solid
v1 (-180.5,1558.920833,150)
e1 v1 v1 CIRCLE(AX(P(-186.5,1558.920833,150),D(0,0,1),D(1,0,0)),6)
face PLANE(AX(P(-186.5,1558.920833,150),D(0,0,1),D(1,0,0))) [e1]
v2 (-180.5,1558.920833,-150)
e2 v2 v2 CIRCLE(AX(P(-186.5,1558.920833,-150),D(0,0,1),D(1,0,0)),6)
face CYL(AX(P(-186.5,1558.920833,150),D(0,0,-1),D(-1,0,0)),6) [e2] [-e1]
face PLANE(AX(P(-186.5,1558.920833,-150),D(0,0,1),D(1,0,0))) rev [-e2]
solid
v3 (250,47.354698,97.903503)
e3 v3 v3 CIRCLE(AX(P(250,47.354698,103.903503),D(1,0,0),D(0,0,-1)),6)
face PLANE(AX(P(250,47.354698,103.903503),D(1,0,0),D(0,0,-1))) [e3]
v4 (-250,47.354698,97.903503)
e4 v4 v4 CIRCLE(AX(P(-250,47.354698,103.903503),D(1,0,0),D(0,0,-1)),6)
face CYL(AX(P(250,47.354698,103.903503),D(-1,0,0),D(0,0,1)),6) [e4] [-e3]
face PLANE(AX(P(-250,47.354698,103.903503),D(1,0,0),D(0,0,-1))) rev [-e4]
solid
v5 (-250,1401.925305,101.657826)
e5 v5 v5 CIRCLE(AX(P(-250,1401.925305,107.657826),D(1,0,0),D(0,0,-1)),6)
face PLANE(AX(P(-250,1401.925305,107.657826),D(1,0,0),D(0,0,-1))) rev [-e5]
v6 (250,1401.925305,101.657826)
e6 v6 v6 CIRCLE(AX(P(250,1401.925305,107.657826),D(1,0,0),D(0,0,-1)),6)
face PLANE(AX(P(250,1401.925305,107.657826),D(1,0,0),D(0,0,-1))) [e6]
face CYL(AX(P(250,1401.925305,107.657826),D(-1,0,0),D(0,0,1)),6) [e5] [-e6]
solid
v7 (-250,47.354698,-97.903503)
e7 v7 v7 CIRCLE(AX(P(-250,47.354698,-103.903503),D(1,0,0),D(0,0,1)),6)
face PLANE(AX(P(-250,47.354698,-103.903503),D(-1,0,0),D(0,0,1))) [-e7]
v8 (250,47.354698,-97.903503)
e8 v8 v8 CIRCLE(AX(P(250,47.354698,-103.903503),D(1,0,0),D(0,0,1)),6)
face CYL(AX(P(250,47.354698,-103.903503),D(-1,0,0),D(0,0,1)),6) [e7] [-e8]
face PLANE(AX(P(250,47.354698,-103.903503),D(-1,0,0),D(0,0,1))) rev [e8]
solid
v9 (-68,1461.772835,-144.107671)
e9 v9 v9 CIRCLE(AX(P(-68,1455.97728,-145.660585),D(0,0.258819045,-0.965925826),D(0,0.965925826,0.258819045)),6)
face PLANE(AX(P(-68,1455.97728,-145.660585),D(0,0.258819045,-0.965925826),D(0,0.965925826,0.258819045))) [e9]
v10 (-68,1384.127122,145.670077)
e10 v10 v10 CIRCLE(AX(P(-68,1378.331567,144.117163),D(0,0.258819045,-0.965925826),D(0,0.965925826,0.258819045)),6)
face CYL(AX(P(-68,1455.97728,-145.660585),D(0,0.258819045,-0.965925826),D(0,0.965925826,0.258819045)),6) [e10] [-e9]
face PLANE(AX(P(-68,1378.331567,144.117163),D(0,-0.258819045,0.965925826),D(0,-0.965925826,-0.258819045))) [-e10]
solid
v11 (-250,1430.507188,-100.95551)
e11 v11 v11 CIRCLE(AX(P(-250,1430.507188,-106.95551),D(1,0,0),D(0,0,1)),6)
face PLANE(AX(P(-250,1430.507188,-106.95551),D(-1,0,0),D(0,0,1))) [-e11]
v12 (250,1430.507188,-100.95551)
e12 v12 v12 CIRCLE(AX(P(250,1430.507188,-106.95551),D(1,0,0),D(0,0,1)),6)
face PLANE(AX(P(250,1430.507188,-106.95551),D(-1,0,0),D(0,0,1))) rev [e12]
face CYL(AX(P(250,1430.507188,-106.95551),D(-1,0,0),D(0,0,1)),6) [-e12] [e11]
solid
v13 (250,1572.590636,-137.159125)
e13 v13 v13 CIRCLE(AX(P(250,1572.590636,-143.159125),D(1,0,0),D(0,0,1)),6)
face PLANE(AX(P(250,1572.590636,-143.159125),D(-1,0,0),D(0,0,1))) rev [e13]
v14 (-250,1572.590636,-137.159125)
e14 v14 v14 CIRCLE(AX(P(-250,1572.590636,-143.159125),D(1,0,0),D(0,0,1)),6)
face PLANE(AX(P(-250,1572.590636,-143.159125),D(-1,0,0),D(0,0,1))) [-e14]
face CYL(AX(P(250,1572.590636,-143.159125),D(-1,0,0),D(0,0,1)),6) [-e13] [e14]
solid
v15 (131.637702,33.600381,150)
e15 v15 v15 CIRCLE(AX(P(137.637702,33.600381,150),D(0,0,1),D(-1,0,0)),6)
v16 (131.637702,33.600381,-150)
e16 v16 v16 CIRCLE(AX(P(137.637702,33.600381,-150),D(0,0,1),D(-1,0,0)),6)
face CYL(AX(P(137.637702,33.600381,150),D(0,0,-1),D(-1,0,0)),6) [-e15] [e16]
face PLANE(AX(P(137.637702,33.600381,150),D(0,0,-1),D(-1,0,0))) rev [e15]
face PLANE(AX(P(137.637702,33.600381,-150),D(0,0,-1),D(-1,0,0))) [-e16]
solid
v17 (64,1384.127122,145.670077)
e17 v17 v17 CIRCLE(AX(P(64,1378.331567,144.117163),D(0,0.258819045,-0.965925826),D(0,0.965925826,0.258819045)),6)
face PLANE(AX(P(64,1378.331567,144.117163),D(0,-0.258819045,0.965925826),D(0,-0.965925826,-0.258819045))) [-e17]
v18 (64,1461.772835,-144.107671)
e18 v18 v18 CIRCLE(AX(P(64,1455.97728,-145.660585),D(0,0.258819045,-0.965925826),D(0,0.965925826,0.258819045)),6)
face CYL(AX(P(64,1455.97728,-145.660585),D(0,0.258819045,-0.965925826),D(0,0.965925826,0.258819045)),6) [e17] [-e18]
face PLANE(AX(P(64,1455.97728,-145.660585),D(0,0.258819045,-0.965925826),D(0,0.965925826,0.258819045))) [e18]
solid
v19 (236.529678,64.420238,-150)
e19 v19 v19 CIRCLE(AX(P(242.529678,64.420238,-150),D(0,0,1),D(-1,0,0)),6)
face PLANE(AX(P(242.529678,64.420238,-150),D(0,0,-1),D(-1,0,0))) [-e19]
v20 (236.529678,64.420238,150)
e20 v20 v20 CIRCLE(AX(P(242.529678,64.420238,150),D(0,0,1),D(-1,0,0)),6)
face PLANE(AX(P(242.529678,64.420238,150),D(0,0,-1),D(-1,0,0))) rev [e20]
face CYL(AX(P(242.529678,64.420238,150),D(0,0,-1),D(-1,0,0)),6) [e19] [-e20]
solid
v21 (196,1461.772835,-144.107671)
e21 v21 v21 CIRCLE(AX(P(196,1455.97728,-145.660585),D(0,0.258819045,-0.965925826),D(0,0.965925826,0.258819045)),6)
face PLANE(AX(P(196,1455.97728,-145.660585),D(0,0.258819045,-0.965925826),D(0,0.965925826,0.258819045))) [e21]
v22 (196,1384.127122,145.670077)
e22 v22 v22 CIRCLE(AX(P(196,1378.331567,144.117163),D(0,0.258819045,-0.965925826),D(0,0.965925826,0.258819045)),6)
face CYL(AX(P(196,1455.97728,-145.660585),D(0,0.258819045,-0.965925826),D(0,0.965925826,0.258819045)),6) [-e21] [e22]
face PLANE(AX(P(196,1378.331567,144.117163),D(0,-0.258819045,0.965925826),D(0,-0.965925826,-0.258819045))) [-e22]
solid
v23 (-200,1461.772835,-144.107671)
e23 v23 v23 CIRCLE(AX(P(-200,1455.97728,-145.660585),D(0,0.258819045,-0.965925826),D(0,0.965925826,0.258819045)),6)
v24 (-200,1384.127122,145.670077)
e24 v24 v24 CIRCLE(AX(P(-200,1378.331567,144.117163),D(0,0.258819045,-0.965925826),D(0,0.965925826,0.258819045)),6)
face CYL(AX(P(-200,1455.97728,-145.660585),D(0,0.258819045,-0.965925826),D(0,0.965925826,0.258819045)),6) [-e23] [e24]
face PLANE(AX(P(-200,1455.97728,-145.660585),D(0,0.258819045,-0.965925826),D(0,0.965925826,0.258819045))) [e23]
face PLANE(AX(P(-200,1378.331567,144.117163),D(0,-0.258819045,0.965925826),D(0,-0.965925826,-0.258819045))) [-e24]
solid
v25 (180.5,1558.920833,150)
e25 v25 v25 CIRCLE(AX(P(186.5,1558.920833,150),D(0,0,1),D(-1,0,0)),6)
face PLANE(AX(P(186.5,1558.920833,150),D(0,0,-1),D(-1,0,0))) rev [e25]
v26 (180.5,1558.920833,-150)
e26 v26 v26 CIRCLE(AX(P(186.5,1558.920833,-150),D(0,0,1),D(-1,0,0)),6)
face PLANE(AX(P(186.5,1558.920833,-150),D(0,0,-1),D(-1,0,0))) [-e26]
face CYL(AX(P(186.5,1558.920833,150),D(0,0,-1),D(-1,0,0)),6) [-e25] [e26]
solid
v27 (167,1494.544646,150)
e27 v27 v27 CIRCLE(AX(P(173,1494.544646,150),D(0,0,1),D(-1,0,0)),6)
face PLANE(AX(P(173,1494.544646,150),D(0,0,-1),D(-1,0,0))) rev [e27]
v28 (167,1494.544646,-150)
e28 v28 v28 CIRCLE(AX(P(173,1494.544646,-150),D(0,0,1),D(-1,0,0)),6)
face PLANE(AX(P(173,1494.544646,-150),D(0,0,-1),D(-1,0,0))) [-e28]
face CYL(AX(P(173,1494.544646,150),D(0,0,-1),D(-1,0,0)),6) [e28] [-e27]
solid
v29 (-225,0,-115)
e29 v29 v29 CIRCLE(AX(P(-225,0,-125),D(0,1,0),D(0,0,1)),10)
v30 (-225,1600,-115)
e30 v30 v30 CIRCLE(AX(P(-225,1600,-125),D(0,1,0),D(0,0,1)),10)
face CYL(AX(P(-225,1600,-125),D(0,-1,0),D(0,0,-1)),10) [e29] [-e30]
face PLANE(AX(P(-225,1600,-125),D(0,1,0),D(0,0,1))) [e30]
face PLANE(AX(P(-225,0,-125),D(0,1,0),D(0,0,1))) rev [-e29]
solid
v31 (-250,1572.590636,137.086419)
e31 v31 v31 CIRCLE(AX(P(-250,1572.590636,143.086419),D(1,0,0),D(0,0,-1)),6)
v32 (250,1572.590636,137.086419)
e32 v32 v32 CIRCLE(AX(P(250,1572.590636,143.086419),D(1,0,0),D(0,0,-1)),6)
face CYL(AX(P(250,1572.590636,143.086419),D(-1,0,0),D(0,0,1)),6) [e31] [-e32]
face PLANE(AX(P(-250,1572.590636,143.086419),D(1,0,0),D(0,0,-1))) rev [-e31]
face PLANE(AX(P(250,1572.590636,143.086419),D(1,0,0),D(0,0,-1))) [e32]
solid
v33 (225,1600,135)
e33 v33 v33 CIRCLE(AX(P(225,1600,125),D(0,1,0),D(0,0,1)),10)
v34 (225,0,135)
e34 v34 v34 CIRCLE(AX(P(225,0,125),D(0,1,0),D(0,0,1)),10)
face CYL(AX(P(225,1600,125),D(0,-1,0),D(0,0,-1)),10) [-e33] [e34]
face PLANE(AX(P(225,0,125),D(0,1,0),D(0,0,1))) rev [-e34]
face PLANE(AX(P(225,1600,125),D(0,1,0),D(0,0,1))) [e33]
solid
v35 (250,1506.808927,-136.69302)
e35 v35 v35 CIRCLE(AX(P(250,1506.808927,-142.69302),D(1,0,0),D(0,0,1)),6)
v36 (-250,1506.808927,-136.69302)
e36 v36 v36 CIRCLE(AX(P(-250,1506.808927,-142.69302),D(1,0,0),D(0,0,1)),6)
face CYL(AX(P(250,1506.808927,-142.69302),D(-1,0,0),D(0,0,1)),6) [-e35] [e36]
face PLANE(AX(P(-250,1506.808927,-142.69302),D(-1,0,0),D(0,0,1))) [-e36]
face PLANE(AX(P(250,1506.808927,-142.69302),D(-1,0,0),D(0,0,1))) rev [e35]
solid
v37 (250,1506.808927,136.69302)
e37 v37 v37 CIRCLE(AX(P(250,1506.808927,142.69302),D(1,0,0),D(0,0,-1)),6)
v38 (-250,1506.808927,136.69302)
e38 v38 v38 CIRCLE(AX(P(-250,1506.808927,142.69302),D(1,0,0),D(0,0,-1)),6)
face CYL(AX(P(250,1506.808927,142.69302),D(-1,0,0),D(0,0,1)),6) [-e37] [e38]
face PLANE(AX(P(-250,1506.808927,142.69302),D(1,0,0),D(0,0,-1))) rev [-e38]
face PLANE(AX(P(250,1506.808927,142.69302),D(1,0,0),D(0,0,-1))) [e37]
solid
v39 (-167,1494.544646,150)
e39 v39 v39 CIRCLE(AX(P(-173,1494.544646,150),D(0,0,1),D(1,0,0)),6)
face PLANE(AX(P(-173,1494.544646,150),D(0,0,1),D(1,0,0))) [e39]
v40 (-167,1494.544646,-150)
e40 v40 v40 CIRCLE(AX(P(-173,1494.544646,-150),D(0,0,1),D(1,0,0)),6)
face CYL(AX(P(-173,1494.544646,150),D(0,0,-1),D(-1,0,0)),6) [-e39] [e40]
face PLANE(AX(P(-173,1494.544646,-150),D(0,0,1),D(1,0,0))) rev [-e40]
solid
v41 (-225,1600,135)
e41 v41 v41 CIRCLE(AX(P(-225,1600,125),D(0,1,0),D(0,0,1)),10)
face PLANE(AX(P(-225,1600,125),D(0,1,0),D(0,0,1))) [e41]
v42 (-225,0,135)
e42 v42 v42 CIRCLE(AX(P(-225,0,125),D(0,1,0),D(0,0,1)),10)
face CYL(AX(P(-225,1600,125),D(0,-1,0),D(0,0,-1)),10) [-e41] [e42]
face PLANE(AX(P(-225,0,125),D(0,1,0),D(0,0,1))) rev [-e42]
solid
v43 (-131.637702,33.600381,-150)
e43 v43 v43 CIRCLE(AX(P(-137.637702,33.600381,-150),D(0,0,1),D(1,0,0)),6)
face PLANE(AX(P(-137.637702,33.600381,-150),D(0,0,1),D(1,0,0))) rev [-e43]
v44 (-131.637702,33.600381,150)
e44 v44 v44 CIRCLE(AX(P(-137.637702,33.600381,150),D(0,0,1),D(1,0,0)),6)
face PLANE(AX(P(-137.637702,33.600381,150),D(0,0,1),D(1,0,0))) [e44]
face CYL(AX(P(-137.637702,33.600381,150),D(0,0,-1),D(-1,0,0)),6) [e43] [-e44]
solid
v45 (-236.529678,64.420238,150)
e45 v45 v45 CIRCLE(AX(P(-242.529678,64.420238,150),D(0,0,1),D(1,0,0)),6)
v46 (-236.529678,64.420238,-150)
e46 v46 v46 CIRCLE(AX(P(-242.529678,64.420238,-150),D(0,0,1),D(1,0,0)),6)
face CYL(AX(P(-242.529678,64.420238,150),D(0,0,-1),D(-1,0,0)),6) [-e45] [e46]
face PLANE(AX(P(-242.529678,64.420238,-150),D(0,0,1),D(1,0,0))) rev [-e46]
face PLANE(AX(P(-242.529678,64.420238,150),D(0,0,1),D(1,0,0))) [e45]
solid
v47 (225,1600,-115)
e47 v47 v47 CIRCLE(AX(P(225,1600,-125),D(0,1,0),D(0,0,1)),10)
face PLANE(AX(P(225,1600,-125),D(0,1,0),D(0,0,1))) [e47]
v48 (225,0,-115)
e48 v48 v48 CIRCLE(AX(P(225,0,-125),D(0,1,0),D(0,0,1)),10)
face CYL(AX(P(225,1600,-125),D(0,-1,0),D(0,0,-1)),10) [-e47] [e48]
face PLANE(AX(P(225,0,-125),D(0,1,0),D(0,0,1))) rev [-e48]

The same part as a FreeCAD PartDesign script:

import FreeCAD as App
import Part
import Sketcher
Q = App.Units.Quantity

doc = App.newDocument("Part")
body = doc.addObject("PartDesign::Body", "Body")

# Sketch on XZ plane
sketch1 = doc.addObject("Sketcher::SketchObject", "Sketch")
body.addObject(sketch1)
sketch1.AttachmentSupport = (doc.XZ_Plane, [""])
sketch1.MapMode = "FlatFace"
sketch1.addGeometry(Part.Circle(App.Vector(-225, 125, 0), App.Vector(0, 0, 1), 10), False)
sketch1.addConstraint([
    Sketcher.Constraint("Diameter", 0, 20.0),
    Sketcher.Constraint("DistanceX", 0, 3, -1, 1, 225.0),
    Sketcher.Constraint("DistanceY", -1, 1, 0, 3, 125.0),
])
pad1 = doc.addObject("PartDesign::Pad", "Pad")
body.addObject(pad1)
pad1.Profile = sketch1
pad1.Length = 1600
pad1.Reversed = True
body2 = doc.addObject("PartDesign::Body", "Body001")

# Sketch on XZ plane
sketch2 = doc.addObject("Sketcher::SketchObject", "Sketch001")
body2.addObject(sketch2)
sketch2.AttachmentSupport = (doc.getObject("XZ_Plane001"), [""])
sketch2.MapMode = "FlatFace"
sketch2.addGeometry(Part.Circle(App.Vector(225, 125, 0), App.Vector(0, 0, 1), 10), False)
sketch2.addConstraint([
    Sketcher.Constraint("Diameter", 0, 20.0),
    Sketcher.Constraint("DistanceX", -1, 1, 0, 3, 225.0),
    Sketcher.Constraint("DistanceY", -1, 1, 0, 3, 125.0),
])
pad2 = doc.addObject("PartDesign::Pad", "Pad001")
body2.addObject(pad2)
pad2.Profile = sketch2
pad2.Length = 1600
pad2.Reversed = True
body3 = doc.addObject("PartDesign::Body", "Body002")

# Sketch on XZ plane
sketch3 = doc.addObject("Sketcher::SketchObject", "Sketch002")
body3.addObject(sketch3)
sketch3.AttachmentSupport = (doc.getObject("XZ_Plane002"), [""])
sketch3.MapMode = "FlatFace"
sketch3.addGeometry(Part.Circle(App.Vector(225, -125, 0), App.Vector(0, 0, 1), 10), False)
sketch3.addConstraint([
    Sketcher.Constraint("Diameter", 0, 20.0),
    Sketcher.Constraint("DistanceX", -1, 1, 0, 3, 225.0),
    Sketcher.Constraint("DistanceY", 0, 3, -1, 1, 125.0),
])
pad3 = doc.addObject("PartDesign::Pad", "Pad002")
body3.addObject(pad3)
pad3.Profile = sketch3
pad3.Length = 1600
pad3.Reversed = True
body4 = doc.addObject("PartDesign::Body", "Body003")

# Sketch on XZ plane
sketch4 = doc.addObject("Sketcher::SketchObject", "Sketch003")
body4.addObject(sketch4)
sketch4.AttachmentSupport = (doc.getObject("XZ_Plane003"), [""])
sketch4.MapMode = "FlatFace"
sketch4.addGeometry(Part.Circle(App.Vector(-225, -125, 0), App.Vector(0, 0, 1), 10), False)
sketch4.addConstraint([
    Sketcher.Constraint("Diameter", 0, 20.0),
    Sketcher.Constraint("DistanceX", 0, 3, -1, 1, 225.0),
    Sketcher.Constraint("DistanceY", 0, 3, -1, 1, 125.0),
])
pad4 = doc.addObject("PartDesign::Pad", "Pad003")
body4.addObject(pad4)
pad4.Profile = sketch4
pad4.Length = 1600
pad4.Reversed = True
body5 = doc.addObject("PartDesign::Body", "Body004")

# Sketch on XY plane
sketch5 = doc.addObject("Sketcher::SketchObject", "Sketch004")
body5.addObject(sketch5)
sketch5.AttachmentSupport = (doc.getObject("XY_Plane004"), [""])
sketch5.MapMode = "FlatFace"
sketch5.AttachmentOffset = App.Placement(App.Vector(0, 0, -150), App.Rotation())
sketch5.addGeometry(Part.Circle(App.Vector(-243, 64, 0), App.Vector(0, 0, 1), 6), False)
sketch5.addConstraint([
    Sketcher.Constraint("Diameter", 0, 12.0),
    Sketcher.Constraint("DistanceY", -1, 1, 0, 3, 64.420238),
    Sketcher.Constraint("DistanceX", 0, 3, -1, 1, 242.529678),
])
pad5 = doc.addObject("PartDesign::Pad", "Pad004")
body5.addObject(pad5)
pad5.Profile = sketch5
pad5.Length = 300
body6 = doc.addObject("PartDesign::Body", "Body005")

# Sketch on XY plane
sketch6 = doc.addObject("Sketcher::SketchObject", "Sketch005")
body6.addObject(sketch6)
sketch6.AttachmentSupport = (doc.getObject("XY_Plane005"), [""])
sketch6.MapMode = "FlatFace"
sketch6.AttachmentOffset = App.Placement(App.Vector(0, 0, -150), App.Rotation())
sketch6.addGeometry(Part.Circle(App.Vector(243, 64, 0), App.Vector(0, 0, 1), 6), False)
sketch6.addConstraint([
    Sketcher.Constraint("Diameter", 0, 12.0),
    Sketcher.Constraint("DistanceY", -1, 1, 0, 3, 64.420238),
    Sketcher.Constraint("DistanceX", -1, 1, 0, 3, 242.529678),
])
pad6 = doc.addObject("PartDesign::Pad", "Pad005")
body6.addObject(pad6)
pad6.Profile = sketch6
pad6.Length = 300
body7 = doc.addObject("PartDesign::Body", "Body006")

# Sketch on XY plane
sketch7 = doc.addObject("Sketcher::SketchObject", "Sketch006")
body7.addObject(sketch7)
sketch7.AttachmentSupport = (doc.getObject("XY_Plane006"), [""])
sketch7.MapMode = "FlatFace"
sketch7.AttachmentOffset = App.Placement(App.Vector(0, 0, -150), App.Rotation())
sketch7.addGeometry(Part.Circle(App.Vector(-138, 34, 0), App.Vector(0, 0, 1), 6), False)
sketch7.addConstraint([
    Sketcher.Constraint("Diameter", 0, 12.0),
    Sketcher.Constraint("DistanceX", 0, 3, -1, 1, 137.637702),
    Sketcher.Constraint("DistanceY", -1, 1, 0, 3, 33.600381),
])
pad7 = doc.addObject("PartDesign::Pad", "Pad006")
body7.addObject(pad7)
pad7.Profile = sketch7
pad7.Length = 300
body8 = doc.addObject("PartDesign::Body", "Body007")

# Sketch on XY plane
sketch8 = doc.addObject("Sketcher::SketchObject", "Sketch007")
body8.addObject(sketch8)
sketch8.AttachmentSupport = (doc.getObject("XY_Plane007"), [""])
sketch8.MapMode = "FlatFace"
sketch8.AttachmentOffset = App.Placement(App.Vector(0, 0, -150), App.Rotation())
sketch8.addGeometry(Part.Circle(App.Vector(138, 34, 0), App.Vector(0, 0, 1), 6), False)
sketch8.addConstraint([
    Sketcher.Constraint("Diameter", 0, 12.0),
    Sketcher.Constraint("DistanceX", -1, 1, 0, 3, 137.637702),
    Sketcher.Constraint("DistanceY", -1, 1, 0, 3, 33.600381),
])
pad8 = doc.addObject("PartDesign::Pad", "Pad007")
body8.addObject(pad8)
pad8.Profile = sketch8
pad8.Length = 300
body9 = doc.addObject("PartDesign::Body", "Body008")

# Sketch on YZ plane
sketch9 = doc.addObject("Sketcher::SketchObject", "Sketch008")
body9.addObject(sketch9)
sketch9.AttachmentSupport = (doc.getObject("YZ_Plane008"), [""])
sketch9.MapMode = "FlatFace"
sketch9.AttachmentOffset = App.Placement(App.Vector(0, 0, -250), App.Rotation())
sketch9.addGeometry(Part.Circle(App.Vector(47, 104, 0), App.Vector(0, 0, 1), 6), False)
sketch9.addConstraint([
    Sketcher.Constraint("Diameter", 0, 12.0),
    Sketcher.Constraint("DistanceX", -1, 1, 0, 3, 47.354698),
    Sketcher.Constraint("DistanceY", -1, 1, 0, 3, 103.903503),
])
pad9 = doc.addObject("PartDesign::Pad", "Pad008")
body9.addObject(pad9)
pad9.Profile = sketch9
pad9.Length = 500
body10 = doc.addObject("PartDesign::Body", "Body009")

# Sketch on YZ plane
sketch10 = doc.addObject("Sketcher::SketchObject", "Sketch009")
body10.addObject(sketch10)
sketch10.AttachmentSupport = (doc.getObject("YZ_Plane009"), [""])
sketch10.MapMode = "FlatFace"
sketch10.AttachmentOffset = App.Placement(App.Vector(0, 0, -250), App.Rotation())
sketch10.addGeometry(Part.Circle(App.Vector(47, -104, 0), App.Vector(0, 0, 1), 6), False)
sketch10.addConstraint([
    Sketcher.Constraint("Diameter", 0, 12.0),
    Sketcher.Constraint("DistanceX", -1, 1, 0, 3, 47.354698),
    Sketcher.Constraint("DistanceY", 0, 3, -1, 1, 103.903503),
])
pad10 = doc.addObject("PartDesign::Pad", "Pad009")
body10.addObject(pad10)
pad10.Profile = sketch10
pad10.Length = 500
body11 = doc.addObject("PartDesign::Body", "Body010")

# Sketch on YZ plane
sketch11 = doc.addObject("Sketcher::SketchObject", "Sketch010")
body11.addObject(sketch11)
sketch11.AttachmentSupport = (doc.getObject("YZ_Plane010"), [""])
sketch11.MapMode = "FlatFace"
sketch11.AttachmentOffset = App.Placement(App.Vector(0, 0, -250), App.Rotation())
sketch11.addGeometry(Part.Circle(App.Vector(1573, 143, 0), App.Vector(0, 0, 1), 6), False)
sketch11.addConstraint([
    Sketcher.Constraint("Diameter", 0, 12.0),
    Sketcher.Constraint("DistanceY", -1, 1, 0, 3, 143.086419),
    Sketcher.Constraint("DistanceX", -1, 1, 0, 3, 1572.590636),
])
pad11 = doc.addObject("PartDesign::Pad", "Pad010")
body11.addObject(pad11)
pad11.Profile = sketch11
pad11.Length = 500
body12 = doc.addObject("PartDesign::Body", "Body011")

# Sketch on YZ plane
sketch12 = doc.addObject("Sketcher::SketchObject", "Sketch011")
body12.addObject(sketch12)
sketch12.AttachmentSupport = (doc.getObject("YZ_Plane011"), [""])
sketch12.MapMode = "FlatFace"
sketch12.AttachmentOffset = App.Placement(App.Vector(0, 0, -250), App.Rotation())
sketch12.addGeometry(Part.Circle(App.Vector(1573, -143, 0), App.Vector(0, 0, 1), 6), False)
sketch12.addConstraint([
    Sketcher.Constraint("Diameter", 0, 12.0),
    Sketcher.Constraint("DistanceX", -1, 1, 0, 3, 1572.590636),
    Sketcher.Constraint("DistanceY", 0, 3, -1, 1, 143.159125),
])
pad12 = doc.addObject("PartDesign::Pad", "Pad011")
body12.addObject(pad12)
pad12.Profile = sketch12
pad12.Length = 500
body13 = doc.addObject("PartDesign::Body", "Body012")

# Sketch on XY plane
sketch13 = doc.addObject("Sketcher::SketchObject", "Sketch012")
body13.addObject(sketch13)
sketch13.AttachmentSupport = (doc.getObject("XY_Plane012"), [""])
sketch13.MapMode = "FlatFace"
sketch13.AttachmentOffset = App.Placement(App.Vector(0, 0, -150), App.Rotation())
sketch13.addGeometry(Part.Circle(App.Vector(-186, 1559, 0), App.Vector(0, 0, 1), 6), False)
sketch13.addConstraint([
    Sketcher.Constraint("Diameter", 0, 12.0),
    Sketcher.Constraint("DistanceX", 0, 3, -1, 1, 186.5),
    Sketcher.Constraint("DistanceY", -1, 1, 0, 3, 1558.920833),
])
pad13 = doc.addObject("PartDesign::Pad", "Pad012")
body13.addObject(pad13)
pad13.Profile = sketch13
pad13.Length = 300
body14 = doc.addObject("PartDesign::Body", "Body013")

# Sketch on XY plane
sketch14 = doc.addObject("Sketcher::SketchObject", "Sketch013")
body14.addObject(sketch14)
sketch14.AttachmentSupport = (doc.getObject("XY_Plane013"), [""])
sketch14.MapMode = "FlatFace"
sketch14.AttachmentOffset = App.Placement(App.Vector(0, 0, -150), App.Rotation())
sketch14.addGeometry(Part.Circle(App.Vector(186, 1559, 0), App.Vector(0, 0, 1), 6), False)
sketch14.addConstraint([
    Sketcher.Constraint("Diameter", 0, 12.0),
    Sketcher.Constraint("DistanceX", -1, 1, 0, 3, 186.5),
    Sketcher.Constraint("DistanceY", -1, 1, 0, 3, 1558.920833),
])
pad14 = doc.addObject("PartDesign::Pad", "Pad013")
body14.addObject(pad14)
pad14.Profile = sketch14
pad14.Length = 300
body15 = doc.addObject("PartDesign::Body", "Body014")

# Sketch on YZ plane
sketch15 = doc.addObject("Sketcher::SketchObject", "Sketch014")
body15.addObject(sketch15)
sketch15.AttachmentSupport = (doc.getObject("YZ_Plane014"), [""])
sketch15.MapMode = "FlatFace"
sketch15.AttachmentOffset = App.Placement(App.Vector(0, 0, -250), App.Rotation())
sketch15.addGeometry(Part.Circle(App.Vector(1507, 143, 0), App.Vector(0, 0, 1), 6), False)
sketch15.addConstraint([
    Sketcher.Constraint("Diameter", 0, 12.0),
    Sketcher.Constraint("DistanceY", -1, 1, 0, 3, 142.69302),
    Sketcher.Constraint("DistanceX", -1, 1, 0, 3, 1506.808927),
])
pad15 = doc.addObject("PartDesign::Pad", "Pad014")
body15.addObject(pad15)
pad15.Profile = sketch15
pad15.Length = 500
body16 = doc.addObject("PartDesign::Body", "Body015")

# Sketch on YZ plane
sketch16 = doc.addObject("Sketcher::SketchObject", "Sketch015")
body16.addObject(sketch16)
sketch16.AttachmentSupport = (doc.getObject("YZ_Plane015"), [""])
sketch16.MapMode = "FlatFace"
sketch16.AttachmentOffset = App.Placement(App.Vector(0, 0, -250), App.Rotation())
sketch16.addGeometry(Part.Circle(App.Vector(1507, -143, 0), App.Vector(0, 0, 1), 6), False)
sketch16.addConstraint([
    Sketcher.Constraint("Diameter", 0, 12.0),
    Sketcher.Constraint("DistanceY", 0, 3, -1, 1, 142.69302),
    Sketcher.Constraint("DistanceX", -1, 1, 0, 3, 1506.808927),
])
pad16 = doc.addObject("PartDesign::Pad", "Pad015")
body16.addObject(pad16)
pad16.Profile = sketch16
pad16.Length = 500
body17 = doc.addObject("PartDesign::Body", "Body016")

# Sketch on XY plane
sketch17 = doc.addObject("Sketcher::SketchObject", "Sketch016")
body17.addObject(sketch17)
sketch17.AttachmentSupport = (doc.getObject("XY_Plane016"), [""])
sketch17.MapMode = "FlatFace"
sketch17.AttachmentOffset = App.Placement(App.Vector(0, 0, -150), App.Rotation())
sketch17.addGeometry(Part.Circle(App.Vector(-173, 1495, 0), App.Vector(0, 0, 1), 6), False)
sketch17.addConstraint([
    Sketcher.Constraint("Diameter", 0, 12.0),
    Sketcher.Constraint("DistanceX", 0, 3, -1, 1, 173.0),
    Sketcher.Constraint("DistanceY", -1, 1, 0, 3, 1494.544646),
])
pad17 = doc.addObject("PartDesign::Pad", "Pad016")
body17.addObject(pad17)
pad17.Profile = sketch17
pad17.Length = 300
body18 = doc.addObject("PartDesign::Body", "Body017")

# Sketch on XY plane
sketch18 = doc.addObject("Sketcher::SketchObject", "Sketch017")
body18.addObject(sketch18)
sketch18.AttachmentSupport = (doc.getObject("XY_Plane017"), [""])
sketch18.MapMode = "FlatFace"
sketch18.AttachmentOffset = App.Placement(App.Vector(0, 0, -150), App.Rotation())
sketch18.addGeometry(Part.Circle(App.Vector(173, 1495, 0), App.Vector(0, 0, 1), 6), False)
sketch18.addConstraint([
    Sketcher.Constraint("Diameter", 0, 12.0),
    Sketcher.Constraint("DistanceX", -1, 1, 0, 3, 173.0),
    Sketcher.Constraint("DistanceY", -1, 1, 0, 3, 1494.544646),
])
pad18 = doc.addObject("PartDesign::Pad", "Pad017")
body18.addObject(pad18)
pad18.Profile = sketch18
pad18.Length = 300
body19 = doc.addObject("PartDesign::Body", "Body018")

# Sketch on YZ plane
sketch19 = doc.addObject("Sketcher::SketchObject", "Sketch018")
body19.addObject(sketch19)
sketch19.AttachmentSupport = (doc.getObject("YZ_Plane018"), [""])
sketch19.MapMode = "FlatFace"
sketch19.AttachmentOffset = App.Placement(App.Vector(0, 0, -250), App.Rotation())
sketch19.addGeometry(Part.Circle(App.Vector(1402, 108, 0), App.Vector(0, 0, 1), 6), False)
sketch19.addConstraint([
    Sketcher.Constraint("Diameter", 0, 12.0),
    Sketcher.Constraint("DistanceX", -1, 1, 0, 3, 1401.925305),
    Sketcher.Constraint("DistanceY", -1, 1, 0, 3, 107.657826),
])
pad19 = doc.addObject("PartDesign::Pad", "Pad018")
body19.addObject(pad19)
pad19.Profile = sketch19
pad19.Length = 500
body20 = doc.addObject("PartDesign::Body", "Body019")

# Sketch on YZ plane
sketch20 = doc.addObject("Sketcher::SketchObject", "Sketch019")
body20.addObject(sketch20)
sketch20.AttachmentSupport = (doc.getObject("YZ_Plane019"), [""])
sketch20.MapMode = "FlatFace"
sketch20.AttachmentOffset = App.Placement(App.Vector(0, 0, -250), App.Rotation())
sketch20.addGeometry(Part.Circle(App.Vector(1431, -107, 0), App.Vector(0, 0, 1), 6), False)
sketch20.addConstraint([
    Sketcher.Constraint("Diameter", 0, 12.0),
    Sketcher.Constraint("DistanceY", 0, 3, -1, 1, 106.95551),
    Sketcher.Constraint("DistanceX", -1, 1, 0, 3, 1430.507188),
])
pad20 = doc.addObject("PartDesign::Pad", "Pad019")
body20.addObject(pad20)
pad20.Profile = sketch20
pad20.Length = 500
body21 = doc.addObject("PartDesign::Body", "Body020")

# Sketch on YZ plane
sketch21 = doc.addObject("Sketcher::SketchObject", "Sketch020")
body21.addObject(sketch21)
sketch21.AttachmentSupport = (doc.getObject("YZ_Plane020"), [""])
sketch21.MapMode = "FlatFace"
sketch21.AttachmentOffset = App.Placement(App.Vector(0, 0, -200), App.Rotation())
sketch21.addGeometry([
    Part.LineSegment(App.Vector(1456, -146, 0), App.Vector(1462, -144, 0)),
    Part.LineSegment(App.Vector(1462, -144, 0), App.Vector(1384, 146, 0)),
    Part.LineSegment(App.Vector(1384, 146, 0), App.Vector(1378, 144, 0)),
    Part.LineSegment(App.Vector(1378, 144, 0), App.Vector(1456, -146, 0)),
], False)
sketch21.addGeometry(Part.LineSegment(App.Vector(1456, -146, 0), App.Vector(1378, 144, 0)), True)  # axis
sketch21.addConstraint([
    Sketcher.Constraint("Coincident", 0, 2, 1, 1),
    Sketcher.Constraint("Coincident", 1, 2, 2, 1),
    Sketcher.Constraint("Coincident", 2, 2, 3, 1),
    Sketcher.Constraint("Coincident", 3, 2, 0, 1),
    Sketcher.Constraint("Coincident", 4, 1, 3, 2),
    Sketcher.Constraint("Coincident", 4, 2, 2, 2),
    Sketcher.Constraint("Perpendicular", 0, 1),
    Sketcher.Constraint("Perpendicular", 1, 2),
    Sketcher.Constraint("Perpendicular", 2, 3),
    Sketcher.Constraint("Angle", 0, Q("15 deg")),
    Sketcher.Constraint("Distance", 0, 6.0),
    Sketcher.Constraint("Distance", 1, 300.0),
    Sketcher.Constraint("DistanceY", 0, 2, -1, 1, 144.107671),
    Sketcher.Constraint("DistanceX", -1, 1, 1, 2, 1384.127122),
])
revolution = doc.addObject("PartDesign::Revolution", "Revolution")
body21.addObject(revolution)
revolution.Profile = sketch21
revolution.ReferenceAxis = (sketch21, ["Axis0"])
revolution.Angle = 360
body22 = doc.addObject("PartDesign::Body", "Body021")

# Sketch on YZ plane
sketch22 = doc.addObject("Sketcher::SketchObject", "Sketch021")
body22.addObject(sketch22)
sketch22.AttachmentSupport = (doc.getObject("YZ_Plane021"), [""])
sketch22.MapMode = "FlatFace"
sketch22.AttachmentOffset = App.Placement(App.Vector(0, 0, -68), App.Rotation())
sketch22.addGeometry([
    Part.LineSegment(App.Vector(1456, -146, 0), App.Vector(1462, -144, 0)),
    Part.LineSegment(App.Vector(1462, -144, 0), App.Vector(1384, 146, 0)),
    Part.LineSegment(App.Vector(1384, 146, 0), App.Vector(1378, 144, 0)),
    Part.LineSegment(App.Vector(1378, 144, 0), App.Vector(1456, -146, 0)),
], False)
sketch22.addGeometry(Part.LineSegment(App.Vector(1456, -146, 0), App.Vector(1378, 144, 0)), True)  # axis
sketch22.addConstraint([
    Sketcher.Constraint("Coincident", 0, 2, 1, 1),
    Sketcher.Constraint("Coincident", 1, 2, 2, 1),
    Sketcher.Constraint("Coincident", 2, 2, 3, 1),
    Sketcher.Constraint("Coincident", 3, 2, 0, 1),
    Sketcher.Constraint("Coincident", 4, 1, 3, 2),
    Sketcher.Constraint("Coincident", 4, 2, 2, 2),
    Sketcher.Constraint("Perpendicular", 0, 1),
    Sketcher.Constraint("Perpendicular", 1, 2),
    Sketcher.Constraint("Perpendicular", 2, 3),
    Sketcher.Constraint("Angle", 0, Q("15 deg")),
    Sketcher.Constraint("Distance", 0, 6.0),
    Sketcher.Constraint("Distance", 1, 300.0),
    Sketcher.Constraint("DistanceY", 0, 2, -1, 1, 144.107671),
    Sketcher.Constraint("DistanceX", -1, 1, 1, 2, 1384.127122),
])
revolution2 = doc.addObject("PartDesign::Revolution", "Revolution001")
body22.addObject(revolution2)
revolution2.Profile = sketch22
revolution2.ReferenceAxis = (sketch22, ["Axis0"])
revolution2.Angle = 360
body23 = doc.addObject("PartDesign::Body", "Body022")

# Sketch on YZ plane
sketch23 = doc.addObject("Sketcher::SketchObject", "Sketch022")
body23.addObject(sketch23)
sketch23.AttachmentSupport = (doc.getObject("YZ_Plane022"), [""])
sketch23.MapMode = "FlatFace"
sketch23.AttachmentOffset = App.Placement(App.Vector(0, 0, 64), App.Rotation())
sketch23.addGeometry([
    Part.LineSegment(App.Vector(1384, 146, 0), App.Vector(1378, 144, 0)),
    Part.LineSegment(App.Vector(1378, 144, 0), App.Vector(1456, -146, 0)),
    Part.LineSegment(App.Vector(1456, -146, 0), App.Vector(1462, -144, 0)),
    Part.LineSegment(App.Vector(1462, -144, 0), App.Vector(1384, 146, 0)),
], False)
sketch23.addGeometry(Part.LineSegment(App.Vector(1456, -146, 0), App.Vector(1378, 144, 0)), True)  # axis
sketch23.addConstraint([
    Sketcher.Constraint("Coincident", 0, 2, 1, 1),
    Sketcher.Constraint("Coincident", 1, 2, 2, 1),
    Sketcher.Constraint("Coincident", 2, 2, 3, 1),
    Sketcher.Constraint("Coincident", 3, 2, 0, 1),
    Sketcher.Constraint("Coincident", 4, 1, 1, 2),
    Sketcher.Constraint("Coincident", 4, 2, 0, 2),
    Sketcher.Constraint("Perpendicular", 0, 1),
    Sketcher.Constraint("Perpendicular", 1, 2),
    Sketcher.Constraint("Perpendicular", 2, 3),
    Sketcher.Constraint("Angle", 0, Q("-165 deg")),
    Sketcher.Constraint("Distance", 0, 6.0),
    Sketcher.Constraint("Distance", 1, 300.0),
    Sketcher.Constraint("DistanceX", -1, 1, 1, 2, 1455.97728),
    Sketcher.Constraint("DistanceY", 2, 2, -1, 1, 144.107671),
])
revolution3 = doc.addObject("PartDesign::Revolution", "Revolution002")
body23.addObject(revolution3)
revolution3.Profile = sketch23
revolution3.ReferenceAxis = (sketch23, ["Axis0"])
revolution3.Angle = 360
body24 = doc.addObject("PartDesign::Body", "Body023")

# Sketch on YZ plane
sketch24 = doc.addObject("Sketcher::SketchObject", "Sketch023")
body24.addObject(sketch24)
sketch24.AttachmentSupport = (doc.getObject("YZ_Plane023"), [""])
sketch24.MapMode = "FlatFace"
sketch24.AttachmentOffset = App.Placement(App.Vector(0, 0, 196), App.Rotation())
sketch24.addGeometry([
    Part.LineSegment(App.Vector(1384, 146, 0), App.Vector(1378, 144, 0)),
    Part.LineSegment(App.Vector(1378, 144, 0), App.Vector(1456, -146, 0)),
    Part.LineSegment(App.Vector(1456, -146, 0), App.Vector(1462, -144, 0)),
    Part.LineSegment(App.Vector(1462, -144, 0), App.Vector(1384, 146, 0)),
], False)
sketch24.addGeometry(Part.LineSegment(App.Vector(1456, -146, 0), App.Vector(1378, 144, 0)), True)  # axis
sketch24.addConstraint([
    Sketcher.Constraint("Coincident", 0, 2, 1, 1),
    Sketcher.Constraint("Coincident", 1, 2, 2, 1),
    Sketcher.Constraint("Coincident", 2, 2, 3, 1),
    Sketcher.Constraint("Coincident", 3, 2, 0, 1),
    Sketcher.Constraint("Coincident", 4, 1, 1, 2),
    Sketcher.Constraint("Coincident", 4, 2, 0, 2),
    Sketcher.Constraint("Perpendicular", 0, 1),
    Sketcher.Constraint("Perpendicular", 1, 2),
    Sketcher.Constraint("Perpendicular", 2, 3),
    Sketcher.Constraint("Angle", 0, Q("-165 deg")),
    Sketcher.Constraint("Distance", 0, 6.0),
    Sketcher.Constraint("Distance", 1, 300.0),
    Sketcher.Constraint("DistanceX", -1, 1, 1, 2, 1455.97728),
    Sketcher.Constraint("DistanceY", 2, 2, -1, 1, 144.107671),
])
revolution4 = doc.addObject("PartDesign::Revolution", "Revolution003")
body24.addObject(revolution4)
revolution4.Profile = sketch24
revolution4.ReferenceAxis = (sketch24, ["Axis0"])
revolution4.Angle = 360

doc.recompute()
